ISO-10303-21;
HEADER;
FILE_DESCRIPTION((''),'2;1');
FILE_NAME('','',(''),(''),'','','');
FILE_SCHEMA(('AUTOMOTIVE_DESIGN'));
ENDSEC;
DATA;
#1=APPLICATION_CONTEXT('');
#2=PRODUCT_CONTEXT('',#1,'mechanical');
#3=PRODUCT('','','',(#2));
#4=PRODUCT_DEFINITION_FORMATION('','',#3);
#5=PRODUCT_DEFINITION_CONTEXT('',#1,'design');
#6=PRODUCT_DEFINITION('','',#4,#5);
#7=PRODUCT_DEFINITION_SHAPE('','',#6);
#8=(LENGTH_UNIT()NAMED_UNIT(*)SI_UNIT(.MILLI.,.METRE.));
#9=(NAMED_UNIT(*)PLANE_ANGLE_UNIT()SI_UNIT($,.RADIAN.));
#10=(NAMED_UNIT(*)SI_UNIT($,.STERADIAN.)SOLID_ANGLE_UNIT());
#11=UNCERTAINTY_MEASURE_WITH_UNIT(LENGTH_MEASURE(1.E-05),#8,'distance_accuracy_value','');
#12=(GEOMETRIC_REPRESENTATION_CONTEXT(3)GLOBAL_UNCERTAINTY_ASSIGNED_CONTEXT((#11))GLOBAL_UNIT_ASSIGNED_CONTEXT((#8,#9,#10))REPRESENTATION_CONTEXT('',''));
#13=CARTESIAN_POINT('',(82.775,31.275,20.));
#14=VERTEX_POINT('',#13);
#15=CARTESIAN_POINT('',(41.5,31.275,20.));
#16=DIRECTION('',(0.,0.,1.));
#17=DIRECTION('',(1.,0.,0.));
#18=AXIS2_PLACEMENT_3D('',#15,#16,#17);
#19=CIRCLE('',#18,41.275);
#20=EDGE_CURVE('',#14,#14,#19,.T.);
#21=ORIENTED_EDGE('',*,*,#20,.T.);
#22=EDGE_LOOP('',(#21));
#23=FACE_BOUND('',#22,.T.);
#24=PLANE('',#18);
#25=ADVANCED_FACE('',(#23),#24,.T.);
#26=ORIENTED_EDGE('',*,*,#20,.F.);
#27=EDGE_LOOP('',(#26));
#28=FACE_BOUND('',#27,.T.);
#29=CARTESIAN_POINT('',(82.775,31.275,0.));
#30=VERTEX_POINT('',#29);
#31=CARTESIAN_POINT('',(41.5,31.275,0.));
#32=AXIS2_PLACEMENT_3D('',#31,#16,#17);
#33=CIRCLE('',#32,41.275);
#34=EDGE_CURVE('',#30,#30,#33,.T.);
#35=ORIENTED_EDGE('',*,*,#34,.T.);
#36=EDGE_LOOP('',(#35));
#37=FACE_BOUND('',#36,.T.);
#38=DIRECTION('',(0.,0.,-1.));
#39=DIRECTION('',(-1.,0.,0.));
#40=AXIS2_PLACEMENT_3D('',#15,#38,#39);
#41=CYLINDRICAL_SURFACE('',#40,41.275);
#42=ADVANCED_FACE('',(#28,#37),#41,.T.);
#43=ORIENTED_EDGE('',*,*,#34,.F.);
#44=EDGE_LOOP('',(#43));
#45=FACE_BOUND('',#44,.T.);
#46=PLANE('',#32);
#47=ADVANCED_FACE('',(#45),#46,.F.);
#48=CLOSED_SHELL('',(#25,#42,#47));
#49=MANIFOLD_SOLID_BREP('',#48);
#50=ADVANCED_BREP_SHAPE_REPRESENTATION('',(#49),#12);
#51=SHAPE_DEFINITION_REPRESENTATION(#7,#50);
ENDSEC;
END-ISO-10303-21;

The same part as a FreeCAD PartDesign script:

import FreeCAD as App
import Part
import Sketcher

doc = App.newDocument("Part")
body = doc.addObject("PartDesign::Body", "Body")

sketch1 = doc.addObject("Sketcher::SketchObject", "Sketch")
body.addObject(sketch1)
sketch1.AttachmentSupport = (doc.XY_Plane, [""])
sketch1.MapMode = "FlatFace"
sketch1.addGeometry(Part.Circle(App.Vector(42, 31, 0), App.Vector(0, 0, 1), 41), False)
sketch1.addConstraint([
    Sketcher.Constraint("Diameter", 0, 82.55),
    Sketcher.Constraint("DistanceX", -1, 1, 0, 3, 41.5),
    Sketcher.Constraint("DistanceY", -1, 1, 0, 3, 31.275),
])
pad1 = doc.addObject("PartDesign::Pad", "Pad")
body.addObject(pad1)
pad1.Profile = sketch1
pad1.Length = 20

doc.recompute()
